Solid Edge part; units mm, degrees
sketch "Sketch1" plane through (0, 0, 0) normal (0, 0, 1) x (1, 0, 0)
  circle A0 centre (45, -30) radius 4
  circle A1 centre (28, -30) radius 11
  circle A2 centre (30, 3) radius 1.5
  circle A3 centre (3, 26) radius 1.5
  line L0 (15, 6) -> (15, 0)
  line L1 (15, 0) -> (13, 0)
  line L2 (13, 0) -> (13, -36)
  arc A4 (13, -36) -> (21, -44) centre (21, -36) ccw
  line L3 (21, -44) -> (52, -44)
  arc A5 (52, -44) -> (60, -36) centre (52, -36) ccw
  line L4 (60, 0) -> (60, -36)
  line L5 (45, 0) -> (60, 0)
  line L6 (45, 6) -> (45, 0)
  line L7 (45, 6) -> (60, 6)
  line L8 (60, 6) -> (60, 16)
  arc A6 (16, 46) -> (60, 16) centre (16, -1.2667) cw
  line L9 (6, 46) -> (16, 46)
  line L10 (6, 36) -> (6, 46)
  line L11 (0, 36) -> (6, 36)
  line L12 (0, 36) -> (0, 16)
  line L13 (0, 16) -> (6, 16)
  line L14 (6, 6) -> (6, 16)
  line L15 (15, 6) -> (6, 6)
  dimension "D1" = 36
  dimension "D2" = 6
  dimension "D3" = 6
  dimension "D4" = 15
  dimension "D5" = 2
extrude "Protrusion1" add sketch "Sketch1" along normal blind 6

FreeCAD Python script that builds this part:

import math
import FreeCAD as App
import Part
import Sketcher
from FreeCAD import Vector
Q = App.Units.Quantity

doc = App.newDocument("Part")
body = doc.addObject("PartDesign::Body", "Body")

# Sketch on XY plane
sketch1 = body.newObject("Sketcher::SketchObject", "Sketch")
sketch1.AttachmentSupport = (doc.getObject("XY_Plane"), [""])
sketch1.MapMode = "FlatFace"
sketch1.addGeometry([
    Part.LineSegment(Vector(6, 6, 0), Vector(15, 6, 0)),  # 0
    Part.LineSegment(Vector(15, 6, 0), Vector(15, 0, 0)),  # 1
    Part.LineSegment(Vector(15, 0, 0), Vector(13, 0, 0)),  # 2
    Part.LineSegment(Vector(13, 0, 0), Vector(13, -36, 0)),  # 3
    Part.ArcOfCircle(Part.Circle(Vector(21, -36, 0), Vector(0, 0, 1), 8), math.radians(180), math.radians(270)),  # 4
    Part.LineSegment(Vector(21, -44, 0), Vector(52, -44, 0)),  # 5
    Part.ArcOfCircle(Part.Circle(Vector(52, -36, 0), Vector(0, 0, 1), 8), math.radians(-90), math.radians(0)),  # 6
    Part.LineSegment(Vector(60, -36, 0), Vector(60, 0, 0)),  # 7
    Part.LineSegment(Vector(60, 0, 0), Vector(45, 0, 0)),  # 8
    Part.LineSegment(Vector(45, 0, 0), Vector(45, 6, 0)),  # 9
    Part.LineSegment(Vector(45, 6, 0), Vector(60, 6, 0)),  # 10
    Part.LineSegment(Vector(60, 6, 0), Vector(60, 16, 0)),  # 11
    Part.ArcOfCircle(Part.Circle(Vector(16, -1.3, 0), Vector(0, 0, 1), 47.3), math.radians(21), math.radians(90)),  # 12
    Part.LineSegment(Vector(16, 46, 0), Vector(6, 46, 0)),  # 13
    Part.LineSegment(Vector(6, 46, 0), Vector(6, 36, 0)),  # 14
    Part.LineSegment(Vector(6, 36, 0), Vector(0, 36, 0)),  # 15
    Part.LineSegment(Vector(0, 36, 0), Vector(0, 16, 0)),  # 16
    Part.LineSegment(Vector(0, 16, 0), Vector(6, 16, 0)),  # 17
    Part.LineSegment(Vector(6, 16, 0), Vector(6, 6, 0)),  # 18
    Part.Circle(Vector(28, -30, 0), Vector(0, 0, 1), 11),  # 19
    Part.Circle(Vector(45, -30, 0), Vector(0, 0, 1), 4),  # 20
    Part.Circle(Vector(3, 26, 0), Vector(0, 0, 1), 1.5),  # 21
    Part.Circle(Vector(30, 3, 0), Vector(0, 0, 1), 1.5),  # 22
], False)
sketch1.addConstraint([
    Sketcher.Constraint("Coincident", 0, 2, 1, 1),
    Sketcher.Constraint("Coincident", 1, 2, 2, 1),
    Sketcher.Constraint("Coincident", 2, 2, 3, 1),
    Sketcher.Constraint("Tangent", 3, 2, 4, 1),
    Sketcher.Constraint("Tangent", 4, 2, 5, 1),
    Sketcher.Constraint("Tangent", 5, 2, 6, 1),
    Sketcher.Constraint("Tangent", 6, 2, 7, 1),
    Sketcher.Constraint("Coincident", 7, 2, 8, 1),
    Sketcher.Constraint("Coincident", 8, 2, 9, 1),
    Sketcher.Constraint("Coincident", 9, 2, 10, 1),
    Sketcher.Constraint("Coincident", 10, 2, 11, 1),
    Sketcher.Constraint("Coincident", 11, 2, 12, 1),
    Sketcher.Constraint("Tangent", 12, 2, 13, 1),
    Sketcher.Constraint("Coincident", 13, 2, 14, 1),
    Sketcher.Constraint("Coincident", 14, 2, 15, 1),
    Sketcher.Constraint("Coincident", 15, 2, 16, 1),
    Sketcher.Constraint("Coincident", 16, 2, 17, 1),
    Sketcher.Constraint("Coincident", 17, 2, 18, 1),
    Sketcher.Constraint("Coincident", 18, 2, 0, 1),
    Sketcher.Constraint("Horizontal", 0),
    Sketcher.Constraint("Vertical", 1),
    Sketcher.Constraint("Horizontal", 2),
    Sketcher.Constraint("Vertical", 3),
    Sketcher.Constraint("Horizontal", 5),
    Sketcher.Constraint("Vertical", 7),
    Sketcher.Constraint("Horizontal", 8),
    Sketcher.Constraint("Vertical", 9),
    Sketcher.Constraint("Horizontal", 10),
    Sketcher.Constraint("Vertical", 11),
    Sketcher.Constraint("Horizontal", 13),
    Sketcher.Constraint("Vertical", 14),
    Sketcher.Constraint("Horizontal", 15),
    Sketcher.Constraint("Vertical", 16),
    Sketcher.Constraint("Horizontal", 17),
    Sketcher.Constraint("Vertical", 18),
    Sketcher.Constraint("Equal", 4, 6),
    Sketcher.Constraint("Equal", 21, 22),
    Sketcher.Constraint("PointOnObject", 1, 2, -1),
    Sketcher.Constraint("PointOnObject", 7, 2, -1),
    Sketcher.Constraint("PointOnObject", 15, 2, -2),
    Sketcher.Constraint("Horizontal", 19, 3, 20, 3),
    Sketcher.Constraint("Horizontal", 0, 2, 9, 2),
    Sketcher.Constraint("Horizontal", 11, 2, 16, 2),
    Sketcher.Constraint("Vertical", 20, 3, 8, 2),
    Sketcher.Constraint("Vertical", 7, 2, 10, 2),
    Sketcher.Constraint("Vertical", 14, 2, 17, 2),
    Sketcher.Constraint("Equal", 17, 1),
    Sketcher.Constraint("Equal", 13, 11),
    Sketcher.Constraint("Equal", 11, 14),
    Sketcher.Constraint("DistanceX", 8, 2, 8, 1, Q("15 mm")),
    Sketcher.Constraint("Diameter", 19, Q("22 mm")),
    Sketcher.Constraint("Diameter", 20, Q("8 mm")),
    Sketcher.Constraint("Diameter", 21, Q("3 mm")),
    Sketcher.Constraint("DistanceX", -1, 1, 20, 3, Q("45 mm")),
    Sketcher.Constraint("DistanceX", -1, 1, 0, 2, Q("15 mm")),
    Sketcher.Constraint("Radius", 4, Q("8 mm")),
    Sketcher.Constraint("DistanceX", 22, 3, 20, 3, Q("15 mm")),
    Sketcher.Constraint("DistanceX", 3, 2, 19, 3, Q("15 mm")),
    Sketcher.Constraint("DistanceX", 0, 1, 0, 2, Q("9 mm")),
    Sketcher.Constraint("DistanceX", 2, 2, 2, 1, Q("2 mm")),
    Sketcher.Constraint("DistanceX", 13, 2, 13, 1, Q("10 mm")),
    Sketcher.Constraint("DistanceY", 3, 2, 3, 1, Q("36 mm")),
    Sketcher.Constraint("DistanceY", 16, 2, 16, 1, Q("20 mm")),
    Sketcher.Constraint("DistanceY", 19, 3, -1, 1, Q("30 mm")),
    Sketcher.Constraint("DistanceX", -1, 1, 21, 3, Q("3 mm")),
    Sketcher.Constraint("DistanceY", -1, 1, 21, 3, Q("26 mm")),
    Sketcher.Constraint("DistanceY", -1, 1, 22, 3, Q("3 mm")),
])
pad1 = body.newObject("PartDesign::Pad", "Pad")
pad1.Profile = sketch1
pad1.Length = 6

doc.recompute()
